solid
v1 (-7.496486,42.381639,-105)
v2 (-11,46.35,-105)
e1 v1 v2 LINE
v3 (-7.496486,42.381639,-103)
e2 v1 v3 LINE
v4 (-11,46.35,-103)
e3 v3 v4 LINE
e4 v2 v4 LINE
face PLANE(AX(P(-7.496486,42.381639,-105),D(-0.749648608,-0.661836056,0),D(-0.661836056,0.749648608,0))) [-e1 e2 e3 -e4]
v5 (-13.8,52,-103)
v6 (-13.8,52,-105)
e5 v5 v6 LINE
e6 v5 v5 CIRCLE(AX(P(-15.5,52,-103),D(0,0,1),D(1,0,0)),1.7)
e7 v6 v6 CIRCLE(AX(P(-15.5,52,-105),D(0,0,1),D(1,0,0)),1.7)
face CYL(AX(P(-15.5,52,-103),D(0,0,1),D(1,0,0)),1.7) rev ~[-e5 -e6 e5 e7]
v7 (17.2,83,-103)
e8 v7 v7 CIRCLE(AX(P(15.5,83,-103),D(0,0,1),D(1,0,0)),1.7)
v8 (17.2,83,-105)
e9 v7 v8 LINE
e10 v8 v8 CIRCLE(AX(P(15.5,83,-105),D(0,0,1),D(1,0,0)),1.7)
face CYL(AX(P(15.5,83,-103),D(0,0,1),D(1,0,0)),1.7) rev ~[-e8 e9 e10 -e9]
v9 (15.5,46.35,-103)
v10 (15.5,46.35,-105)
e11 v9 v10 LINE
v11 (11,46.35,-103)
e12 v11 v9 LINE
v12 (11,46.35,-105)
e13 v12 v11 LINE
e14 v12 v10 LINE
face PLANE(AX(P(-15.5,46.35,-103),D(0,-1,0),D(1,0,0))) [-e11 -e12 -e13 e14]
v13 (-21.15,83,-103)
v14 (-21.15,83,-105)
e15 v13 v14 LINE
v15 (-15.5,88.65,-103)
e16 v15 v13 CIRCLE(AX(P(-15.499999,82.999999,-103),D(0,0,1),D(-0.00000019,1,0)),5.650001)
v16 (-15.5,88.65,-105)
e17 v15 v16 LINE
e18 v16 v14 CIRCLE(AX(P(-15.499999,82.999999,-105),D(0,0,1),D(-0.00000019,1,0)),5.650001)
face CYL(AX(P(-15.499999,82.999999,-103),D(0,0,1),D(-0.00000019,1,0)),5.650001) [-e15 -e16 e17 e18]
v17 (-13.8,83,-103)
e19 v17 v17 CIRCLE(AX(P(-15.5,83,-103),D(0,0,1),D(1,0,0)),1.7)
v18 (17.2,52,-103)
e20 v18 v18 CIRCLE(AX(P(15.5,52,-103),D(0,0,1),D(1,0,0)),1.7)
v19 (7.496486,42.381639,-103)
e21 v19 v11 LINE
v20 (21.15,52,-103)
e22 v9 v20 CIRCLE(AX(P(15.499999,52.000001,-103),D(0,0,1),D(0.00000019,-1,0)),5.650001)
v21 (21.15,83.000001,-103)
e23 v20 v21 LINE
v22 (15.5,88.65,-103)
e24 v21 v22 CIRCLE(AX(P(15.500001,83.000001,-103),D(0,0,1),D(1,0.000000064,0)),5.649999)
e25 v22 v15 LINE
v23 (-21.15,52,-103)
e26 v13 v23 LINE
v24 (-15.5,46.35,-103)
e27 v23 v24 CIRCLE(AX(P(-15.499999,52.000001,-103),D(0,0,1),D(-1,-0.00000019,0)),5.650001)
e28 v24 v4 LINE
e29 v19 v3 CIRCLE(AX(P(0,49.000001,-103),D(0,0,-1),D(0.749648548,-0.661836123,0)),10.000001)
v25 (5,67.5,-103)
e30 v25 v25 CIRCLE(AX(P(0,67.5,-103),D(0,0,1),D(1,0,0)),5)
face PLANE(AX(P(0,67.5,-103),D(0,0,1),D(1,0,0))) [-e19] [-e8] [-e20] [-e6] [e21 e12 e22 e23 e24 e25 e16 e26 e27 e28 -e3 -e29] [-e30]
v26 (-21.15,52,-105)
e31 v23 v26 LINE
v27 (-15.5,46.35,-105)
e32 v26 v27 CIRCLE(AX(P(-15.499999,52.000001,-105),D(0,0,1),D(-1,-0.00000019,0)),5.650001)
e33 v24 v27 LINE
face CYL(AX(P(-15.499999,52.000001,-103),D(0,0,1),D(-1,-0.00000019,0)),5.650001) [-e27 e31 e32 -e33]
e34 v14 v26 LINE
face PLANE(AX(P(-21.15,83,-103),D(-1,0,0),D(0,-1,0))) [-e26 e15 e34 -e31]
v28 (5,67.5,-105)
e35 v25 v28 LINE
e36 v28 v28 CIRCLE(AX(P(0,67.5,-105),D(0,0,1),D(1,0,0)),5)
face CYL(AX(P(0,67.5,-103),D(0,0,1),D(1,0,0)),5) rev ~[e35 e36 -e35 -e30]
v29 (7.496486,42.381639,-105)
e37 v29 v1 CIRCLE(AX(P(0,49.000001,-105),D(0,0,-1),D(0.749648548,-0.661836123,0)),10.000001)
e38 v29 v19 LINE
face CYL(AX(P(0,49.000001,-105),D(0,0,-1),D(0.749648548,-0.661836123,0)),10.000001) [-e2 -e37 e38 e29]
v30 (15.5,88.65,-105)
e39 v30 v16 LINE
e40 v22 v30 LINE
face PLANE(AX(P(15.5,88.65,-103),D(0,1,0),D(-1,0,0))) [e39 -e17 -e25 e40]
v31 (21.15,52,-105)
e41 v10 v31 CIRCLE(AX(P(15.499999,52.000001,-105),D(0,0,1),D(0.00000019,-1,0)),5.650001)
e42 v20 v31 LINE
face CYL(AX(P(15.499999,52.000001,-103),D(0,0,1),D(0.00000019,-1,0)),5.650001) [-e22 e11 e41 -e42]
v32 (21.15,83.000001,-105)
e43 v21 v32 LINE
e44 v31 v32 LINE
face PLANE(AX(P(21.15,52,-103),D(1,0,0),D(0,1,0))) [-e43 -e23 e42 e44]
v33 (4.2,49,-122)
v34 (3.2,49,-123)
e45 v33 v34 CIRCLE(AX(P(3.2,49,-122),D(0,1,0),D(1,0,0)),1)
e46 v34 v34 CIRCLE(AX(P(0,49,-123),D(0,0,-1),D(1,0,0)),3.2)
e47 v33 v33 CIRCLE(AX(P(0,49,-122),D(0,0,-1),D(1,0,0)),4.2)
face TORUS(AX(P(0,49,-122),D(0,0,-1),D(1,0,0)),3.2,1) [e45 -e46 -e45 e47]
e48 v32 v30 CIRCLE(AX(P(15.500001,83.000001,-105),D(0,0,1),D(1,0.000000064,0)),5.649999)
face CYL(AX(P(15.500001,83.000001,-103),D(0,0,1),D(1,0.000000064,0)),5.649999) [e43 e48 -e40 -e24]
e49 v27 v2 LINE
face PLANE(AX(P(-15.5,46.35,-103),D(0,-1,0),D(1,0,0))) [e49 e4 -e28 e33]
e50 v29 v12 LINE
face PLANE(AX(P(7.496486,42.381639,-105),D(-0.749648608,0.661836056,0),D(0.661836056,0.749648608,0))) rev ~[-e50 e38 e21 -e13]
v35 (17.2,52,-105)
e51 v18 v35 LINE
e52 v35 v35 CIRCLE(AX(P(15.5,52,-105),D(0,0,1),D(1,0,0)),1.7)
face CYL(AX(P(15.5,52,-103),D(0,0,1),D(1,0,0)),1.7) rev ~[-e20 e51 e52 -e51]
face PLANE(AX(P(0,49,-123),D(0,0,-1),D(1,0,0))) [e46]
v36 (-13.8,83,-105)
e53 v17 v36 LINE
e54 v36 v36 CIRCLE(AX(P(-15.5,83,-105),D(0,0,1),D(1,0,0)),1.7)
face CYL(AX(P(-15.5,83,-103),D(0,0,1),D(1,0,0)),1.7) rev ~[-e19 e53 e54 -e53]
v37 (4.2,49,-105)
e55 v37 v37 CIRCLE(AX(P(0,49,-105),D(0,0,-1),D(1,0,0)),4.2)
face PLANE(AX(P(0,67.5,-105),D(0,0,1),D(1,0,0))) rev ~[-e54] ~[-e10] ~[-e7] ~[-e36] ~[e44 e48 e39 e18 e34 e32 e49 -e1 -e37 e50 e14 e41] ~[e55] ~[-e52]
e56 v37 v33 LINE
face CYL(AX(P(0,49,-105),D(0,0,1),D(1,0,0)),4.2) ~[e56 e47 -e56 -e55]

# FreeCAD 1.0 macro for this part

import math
import FreeCAD as App
import Part
import Sketcher

V = App.Vector
Q = App.Units.Quantity


def edges_at(feature, points):
    """Names of the edges that pass closest to the given points."""
    edges = feature.Shape.Edges
    near = lambda p: min(range(len(edges)), key=lambda i: edges[i].distToShape(Part.Vertex(*p))[0])
    return sorted({f"Edge{near(p) + 1}" for p in points})

doc = App.newDocument("Part")
body = doc.addObject("PartDesign::Body", "Body")

# Sketch on XY plane
sketch1 = doc.addObject("Sketcher::SketchObject", "Sketch")
body.addObject(sketch1)
sketch1.AttachmentSupport = (doc.XY_Plane, [""])
sketch1.MapMode = "FlatFace"
sketch1.addGeometry([
    Part.ArcOfCircle(Part.Circle(V(-15.499999, 15.499999, 0), V(0, 0, 1), 5.650001), math.radians(90.000011), math.radians(179.999989)),  # 0
    Part.LineSegment(V(-21.15, 15.5, 0), V(-21.15, -15.5, 0)),  # 1
    Part.ArcOfCircle(Part.Circle(V(-15.499999, -15.499999, 0), V(0, 0, 1), 5.650001), math.radians(-179.999989), math.radians(-90.000011)),  # 2
    Part.LineSegment(V(-15.5, -21.15, 0), V(15.5, -21.15, 0)),  # 3
    Part.ArcOfCircle(Part.Circle(V(15.499999, -15.499999, 0), V(0, 0, 1), 5.650001), math.radians(-89.999989), math.radians(-0.000011)),  # 4
    Part.LineSegment(V(21.15, -15.5, 0), V(21.15, 15.500001, 0)),  # 5
    Part.ArcOfCircle(Part.Circle(V(15.500001, 15.500001, 0), V(0, 0, 1), 5.649999), math.radians(0.000004), math.radians(90.000006)),  # 6
    Part.LineSegment(V(15.5, 21.15, 0), V(-15.5, 21.15, 0)),  # 7
    Part.Circle(V(-15.5, -15.5, 0), V(0, 0, 1), 1.7),  # 8
    Part.Circle(V(15.5, -15.5, 0), V(0, 0, 1), 1.7),  # 9
    Part.Circle(V(-15.5, 15.5, 0), V(0, 0, 1), 1.7),  # 10
    Part.Circle(V(0, 0, 0), V(0, 0, 1), 5),  # 11
    Part.Circle(V(15.5, 15.5, 0), V(0, 0, 1), 1.7),  # 12
], False)
sketch1.addConstraint([
    Sketcher.Constraint("Tangent", 0, 2, 1, 1),
    Sketcher.Constraint("Tangent", 1, 2, 2, 1),
    Sketcher.Constraint("Tangent", 2, 2, 3, 1),
    Sketcher.Constraint("Tangent", 3, 2, 4, 1),
    Sketcher.Constraint("Tangent", 4, 2, 5, 1),
    Sketcher.Constraint("Tangent", 5, 2, 6, 1),
    Sketcher.Constraint("Tangent", 6, 2, 7, 1),
    Sketcher.Constraint("Tangent", 7, 2, 0, 1),
    Sketcher.Constraint("Vertical", 1),
    Sketcher.Constraint("Horizontal", 3),
    Sketcher.Constraint("Vertical", 5),
    Sketcher.Constraint("Horizontal", 7),
    Sketcher.Constraint("Coincident", 11, 3, -1, 1),
    Sketcher.Constraint("Coincident", 8, 3, 2, 3),
    Sketcher.Constraint("Coincident", 9, 3, 4, 3),
    Sketcher.Constraint("Coincident", 10, 3, 0, 3),
    Sketcher.Constraint("Coincident", 12, 3, 6, 3),
    Sketcher.Constraint("Equal", 0, 2),
    Sketcher.Constraint("Equal", 2, 4),
    Sketcher.Constraint("Equal", 4, 6),
    Sketcher.Constraint("Equal", 8, 9),
    Sketcher.Constraint("Equal", 9, 10),
    Sketcher.Constraint("Equal", 10, 12),
    Sketcher.Constraint("Symmetric", 0, 3, 4, 3, -1, 1),
    Sketcher.Constraint("Equal", 7, 1),
    Sketcher.Constraint("Diameter", 11, Q("10 mm")),
    Sketcher.Constraint("Diameter", 8, Q("3.4 mm")),
    Sketcher.Constraint("DistanceX", 3, 1, 3, 2, Q("31 mm")),
    Sketcher.Constraint("Radius", 0, Q("5.650001 mm")),
])
pad1 = doc.addObject("PartDesign::Pad", "Pad")
body.addObject(pad1)
pad1.Profile = sketch1
pad1.Length = 2
pad1.Reversed = True

# Sketch on XY plane
sketch2 = doc.addObject("Sketcher::SketchObject", "Sketch001")
body.addObject(sketch2)
sketch2.AttachmentSupport = (doc.XY_Plane, [""])
sketch2.MapMode = "FlatFace"
sketch2.AttachmentOffset = App.Placement(V(0, 0, -2), App.Rotation())
sketch2.addGeometry([
    Part.ArcOfCircle(Part.Circle(V(0, -18.499999, 0), V(0, 0, 1), 10.000001), math.radians(-138.559943), math.radians(-41.440057)),
    Part.LineSegment(V(-7.496486, -25.118361, 0), V(-11, -21.15, 0)),
    Part.LineSegment(V(-11, -21.15, 0), V(11, -21.15, 0)),
    Part.LineSegment(V(11, -21.15, 0), V(7.496486, -25.118361, 0)),
], False)
sketch2.addConstraint([
    Sketcher.Constraint("Tangent", 0, 1, 1, 1),
    Sketcher.Constraint("Coincident", 1, 2, 2, 1),
    Sketcher.Constraint("Coincident", 2, 2, 3, 1),
    Sketcher.Constraint("Tangent", 3, 2, 0, 2),
    Sketcher.Constraint("Horizontal", 2),
    Sketcher.Constraint("Symmetric", 0, 1, 3, 2, -2),
    Sketcher.Constraint("Radius", 0, Q("10.000001 mm")),
    Sketcher.Constraint("DistanceX", 2, 1, 2, 2, Q("22 mm")),
    Sketcher.Constraint("DistanceY", 0, 3, -1, 1, Q("18.499999 mm")),
    Sketcher.Constraint("DistanceY", 1, 2, -1, 1, Q("21.15 mm")),
])
pad2 = doc.addObject("PartDesign::Pad", "Pad001")
body.addObject(pad2)
pad2.Profile = sketch2
pad2.Length = 2

# Sketch on XY plane
sketch3 = doc.addObject("Sketcher::SketchObject", "Sketch002")
body.addObject(sketch3)
sketch3.AttachmentSupport = (doc.XY_Plane, [""])
sketch3.MapMode = "FlatFace"
sketch3.AttachmentOffset = App.Placement(V(0, 0, -2), App.Rotation())
sketch3.addGeometry(Part.Circle(V(0, -18.5, 0), V(0, 0, 1), 4.2), False)
sketch3.addConstraint([
    Sketcher.Constraint("PointOnObject", 0, 3, -2),
    Sketcher.Constraint("Diameter", 0, Q("8.4 mm")),
    Sketcher.Constraint("DistanceY", 0, 3, -1, 1, Q("18.5 mm")),
])
pad3 = doc.addObject("PartDesign::Pad", "Pad002")
body.addObject(pad3)
pad3.Profile = sketch3
pad3.Length = 18
pad3.Reversed = True
doc.recompute()

fillet = doc.addObject("PartDesign::Fillet", "Fillet")
body.addObject(fillet)
fillet.Base = (pad3, edges_at(pad3, [(-4.2, -18.5, -20)]))
fillet.Radius = 1
body2 = doc.addObject("PartDesign::Body", "Body001")
doc.recompute()

body.Placement = App.Placement(V(0, 67.5, -103), App.Rotation(V(0, 0, 1), 0))
boolean = doc.addObject("PartDesign::Boolean", "Boolean")
body2.addObject(boolean)
boolean.Type = "Fuse"
boolean.addObjects([body])

doc.recompute()
